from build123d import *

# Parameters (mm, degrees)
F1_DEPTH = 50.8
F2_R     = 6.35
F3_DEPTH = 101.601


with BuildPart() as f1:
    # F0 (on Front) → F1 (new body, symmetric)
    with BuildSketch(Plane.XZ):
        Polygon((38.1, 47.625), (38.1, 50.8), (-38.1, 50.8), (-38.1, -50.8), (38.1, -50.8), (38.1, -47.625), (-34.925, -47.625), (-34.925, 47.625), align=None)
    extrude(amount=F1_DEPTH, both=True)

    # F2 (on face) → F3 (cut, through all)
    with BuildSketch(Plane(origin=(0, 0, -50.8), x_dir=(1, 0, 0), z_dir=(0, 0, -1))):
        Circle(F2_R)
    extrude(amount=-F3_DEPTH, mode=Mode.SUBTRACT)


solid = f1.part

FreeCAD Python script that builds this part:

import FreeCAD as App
import Part
import Sketcher
from FreeCAD import Vector
Q = App.Units.Quantity

doc = App.newDocument("Part")
body = doc.addObject("PartDesign::Body", "Body")

# Sketch on XZ plane
sketch1 = body.newObject("Sketcher::SketchObject", "Sketch")
sketch1.AttachmentSupport = (doc.getObject("XZ_Plane"), [""])
sketch1.MapMode = "FlatFace"
sketch1.addGeometry([
    Part.LineSegment(Vector(38.1, 47.625, 0), Vector(38.1, 50.8, 0)),  # 0
    Part.LineSegment(Vector(38.1, 50.8, 0), Vector(-38.1, 50.8, 0)),  # 1
    Part.LineSegment(Vector(-38.1, 50.8, 0), Vector(-38.1, -50.8, 0)),  # 2
    Part.LineSegment(Vector(-38.1, -50.8, 0), Vector(38.1, -50.8, 0)),  # 3
    Part.LineSegment(Vector(38.1, -50.8, 0), Vector(38.1, -47.625, 0)),  # 4
    Part.LineSegment(Vector(38.1, -47.625, 0), Vector(-34.925, -47.625, 0)),  # 5
    Part.LineSegment(Vector(-34.925, -47.625, 0), Vector(-34.925, 47.625, 0)),  # 6
    Part.LineSegment(Vector(-34.925, 47.625, 0), Vector(38.1, 47.625, 0)),  # 7
], False)
sketch1.addConstraint([
    Sketcher.Constraint("Coincident", 0, 2, 1, 1),
    Sketcher.Constraint("Coincident", 1, 2, 2, 1),
    Sketcher.Constraint("Coincident", 2, 2, 3, 1),
    Sketcher.Constraint("Coincident", 3, 2, 4, 1),
    Sketcher.Constraint("Coincident", 4, 2, 5, 1),
    Sketcher.Constraint("Coincident", 5, 2, 6, 1),
    Sketcher.Constraint("Coincident", 6, 2, 7, 1),
    Sketcher.Constraint("Coincident", 7, 2, 0, 1),
    Sketcher.Constraint("Vertical", 0),
    Sketcher.Constraint("Horizontal", 1),
    Sketcher.Constraint("Vertical", 2),
    Sketcher.Constraint("Horizontal", 3),
    Sketcher.Constraint("Vertical", 4),
    Sketcher.Constraint("Horizontal", 5),
    Sketcher.Constraint("Vertical", 6),
    Sketcher.Constraint("Horizontal", 7),
    Sketcher.Constraint("Symmetric", 0, 2, 2, 2, -1, 1),
    Sketcher.Constraint("Symmetric", 4, 2, 7, 2, -1),
    Sketcher.Constraint("DistanceX", 1, 2, 1, 1, Q("3 in")),
    Sketcher.Constraint("DistanceY", 2, 2, 2, 1, Q("4 in")),
    Sketcher.Constraint("DistanceY", 6, 1, 6, 2, Q("3.75 in")),
    Sketcher.Constraint("DistanceX", 5, 2, 5, 1, Q("2.875 in")),
])
pad1 = body.newObject("PartDesign::Pad", "Pad")
pad1.Profile = sketch1
pad1.Length = Q("4 in")
pad1.Midplane = True

# Sketch on XY plane
sketch2 = body.newObject("Sketcher::SketchObject", "Sketch001")
sketch2.AttachmentSupport = (doc.getObject("XY_Plane"), [""])
sketch2.MapMode = "FlatFace"
sketch2.AttachmentOffset = App.Placement(Vector(0, 0, -2 * 25.4), App.Rotation())
sketch2.addGeometry(Part.Circle(Vector(0, 0, 0), Vector(0, 0, 1), 6.35), False)
sketch2.addConstraint([
    Sketcher.Constraint("Coincident", 0, 3, -1, 1),
    Sketcher.Constraint("Diameter", 0, Q("0.5 in")),
])
pocket1 = body.newObject("PartDesign::Pocket", "Pocket")
pocket1.Profile = sketch2
pocket1.Type = "ThroughAll"
pocket1.Reversed = True

doc.recompute()
